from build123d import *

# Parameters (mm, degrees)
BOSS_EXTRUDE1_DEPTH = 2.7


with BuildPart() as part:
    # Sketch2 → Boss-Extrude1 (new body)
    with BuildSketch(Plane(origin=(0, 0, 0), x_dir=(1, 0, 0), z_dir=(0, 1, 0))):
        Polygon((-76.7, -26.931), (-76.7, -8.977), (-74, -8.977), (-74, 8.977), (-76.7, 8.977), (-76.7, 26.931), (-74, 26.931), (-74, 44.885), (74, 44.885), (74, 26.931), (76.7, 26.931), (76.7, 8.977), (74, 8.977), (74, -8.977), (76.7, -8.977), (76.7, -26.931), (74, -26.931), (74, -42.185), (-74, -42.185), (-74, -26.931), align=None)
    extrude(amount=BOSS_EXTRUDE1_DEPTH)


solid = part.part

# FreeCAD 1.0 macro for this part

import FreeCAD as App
import Part
import Sketcher


def add_polygon(sketch, points):
    """Adds a closed chain of lines whose ends are joined by coincident constraints."""
    first, n = sketch.GeometryCount, len(points)
    for a, b in zip(points, points[1:] + points[:1]):
        sketch.addGeometry(Part.LineSegment(App.Vector(*a, 0), App.Vector(*b, 0)), False)
    for i in range(n):
        sketch.addConstraint(Sketcher.Constraint("Coincident", first + i, 2, first + (i + 1) % n, 1))

doc = App.newDocument("Part")
body = doc.addObject("PartDesign::Body", "Body")

# Sketch on XZ plane
sketch1 = doc.addObject("Sketcher::SketchObject", "Sketch")
body.addObject(sketch1)
sketch1.AttachmentSupport = (doc.XZ_Plane, [""])
sketch1.MapMode = "FlatFace"
add_polygon(sketch1, [(-76.7, 9), (-76.7, 26.9), (-74, 26.9), (-74, 42.2), (74, 42.2), (74, 26.9), (76.7, 26.9), (76.7, 9), (74, 9), (74, -9), (76.7, -9), (76.7, -26.9), (74, -26.9), (74, -44.9), (-74, -44.9), (-74, -26.9), (-76.7, -26.9), (-76.7, -9), (-74, -9), (-74, 9)])  # lines 0-19
sketch1.addConstraint(Sketcher.Constraint("Vertical", 0))
sketch1.addConstraint(Sketcher.Constraint("Horizontal", 1))
sketch1.addConstraint(Sketcher.Constraint("Vertical", 2))
sketch1.addConstraint(Sketcher.Constraint("Horizontal", 3))
sketch1.addConstraint(Sketcher.Constraint("Vertical", 4))
sketch1.addConstraint(Sketcher.Constraint("Horizontal", 5))
sketch1.addConstraint(Sketcher.Constraint("Vertical", 6))
sketch1.addConstraint(Sketcher.Constraint("Horizontal", 7))
sketch1.addConstraint(Sketcher.Constraint("Vertical", 8))
sketch1.addConstraint(Sketcher.Constraint("Horizontal", 9))
sketch1.addConstraint(Sketcher.Constraint("Vertical", 10))
sketch1.addConstraint(Sketcher.Constraint("Horizontal", 11))
sketch1.addConstraint(Sketcher.Constraint("Vertical", 12))
sketch1.addConstraint(Sketcher.Constraint("Horizontal", 13))
sketch1.addConstraint(Sketcher.Constraint("Vertical", 14))
sketch1.addConstraint(Sketcher.Constraint("Horizontal", 15))
sketch1.addConstraint(Sketcher.Constraint("Vertical", 16))
sketch1.addConstraint(Sketcher.Constraint("Horizontal", 17))
sketch1.addConstraint(Sketcher.Constraint("Vertical", 18))
sketch1.addConstraint(Sketcher.Constraint("Horizontal", 19))
sketch1.addConstraint(Sketcher.Constraint("Symmetric", 0, 2, 10, 2, -1, 1))
sketch1.addConstraint(Sketcher.Constraint("Symmetric", 4, 2, 14, 2, -1, 1))
sketch1.addConstraint(Sketcher.Constraint("Symmetric", 6, 2, 16, 2, -1, 1))
sketch1.addConstraint(Sketcher.Constraint("Symmetric", 8, 2, 18, 2, -1, 1))
sketch1.addConstraint(Sketcher.Constraint("Symmetric", 1, 2, 4, 2, -2))
sketch1.addConstraint(Sketcher.Constraint("Symmetric", 9, 2, 16, 2, -2))
sketch1.addConstraint(Sketcher.Constraint("Vertical", 4, 2, 7, 2))
sketch1.addConstraint(Sketcher.Constraint("Vertical", 8, 2, 11, 2))
sketch1.addConstraint(Sketcher.Constraint("Equal", 6, 8))
sketch1.addConstraint(Sketcher.Constraint("Equal", 10, 12))
sketch1.addConstraint(Sketcher.Constraint("DistanceX", 3, 1, 3, 2, 148.0))
sketch1.addConstraint(Sketcher.Constraint("DistanceX", 1, 1, 1, 2, 2.7))
sketch1.addConstraint(Sketcher.Constraint("DistanceY", 0, 1, 0, 2, 17.954))
sketch1.addConstraint(Sketcher.Constraint("DistanceY", 2, 1, 2, 2, 15.254))
pad1 = doc.addObject("PartDesign::Pad", "Pad")
body.addObject(pad1)
pad1.Profile = sketch1
pad1.Length = 2.7
pad1.Reversed = True

doc.recompute()
